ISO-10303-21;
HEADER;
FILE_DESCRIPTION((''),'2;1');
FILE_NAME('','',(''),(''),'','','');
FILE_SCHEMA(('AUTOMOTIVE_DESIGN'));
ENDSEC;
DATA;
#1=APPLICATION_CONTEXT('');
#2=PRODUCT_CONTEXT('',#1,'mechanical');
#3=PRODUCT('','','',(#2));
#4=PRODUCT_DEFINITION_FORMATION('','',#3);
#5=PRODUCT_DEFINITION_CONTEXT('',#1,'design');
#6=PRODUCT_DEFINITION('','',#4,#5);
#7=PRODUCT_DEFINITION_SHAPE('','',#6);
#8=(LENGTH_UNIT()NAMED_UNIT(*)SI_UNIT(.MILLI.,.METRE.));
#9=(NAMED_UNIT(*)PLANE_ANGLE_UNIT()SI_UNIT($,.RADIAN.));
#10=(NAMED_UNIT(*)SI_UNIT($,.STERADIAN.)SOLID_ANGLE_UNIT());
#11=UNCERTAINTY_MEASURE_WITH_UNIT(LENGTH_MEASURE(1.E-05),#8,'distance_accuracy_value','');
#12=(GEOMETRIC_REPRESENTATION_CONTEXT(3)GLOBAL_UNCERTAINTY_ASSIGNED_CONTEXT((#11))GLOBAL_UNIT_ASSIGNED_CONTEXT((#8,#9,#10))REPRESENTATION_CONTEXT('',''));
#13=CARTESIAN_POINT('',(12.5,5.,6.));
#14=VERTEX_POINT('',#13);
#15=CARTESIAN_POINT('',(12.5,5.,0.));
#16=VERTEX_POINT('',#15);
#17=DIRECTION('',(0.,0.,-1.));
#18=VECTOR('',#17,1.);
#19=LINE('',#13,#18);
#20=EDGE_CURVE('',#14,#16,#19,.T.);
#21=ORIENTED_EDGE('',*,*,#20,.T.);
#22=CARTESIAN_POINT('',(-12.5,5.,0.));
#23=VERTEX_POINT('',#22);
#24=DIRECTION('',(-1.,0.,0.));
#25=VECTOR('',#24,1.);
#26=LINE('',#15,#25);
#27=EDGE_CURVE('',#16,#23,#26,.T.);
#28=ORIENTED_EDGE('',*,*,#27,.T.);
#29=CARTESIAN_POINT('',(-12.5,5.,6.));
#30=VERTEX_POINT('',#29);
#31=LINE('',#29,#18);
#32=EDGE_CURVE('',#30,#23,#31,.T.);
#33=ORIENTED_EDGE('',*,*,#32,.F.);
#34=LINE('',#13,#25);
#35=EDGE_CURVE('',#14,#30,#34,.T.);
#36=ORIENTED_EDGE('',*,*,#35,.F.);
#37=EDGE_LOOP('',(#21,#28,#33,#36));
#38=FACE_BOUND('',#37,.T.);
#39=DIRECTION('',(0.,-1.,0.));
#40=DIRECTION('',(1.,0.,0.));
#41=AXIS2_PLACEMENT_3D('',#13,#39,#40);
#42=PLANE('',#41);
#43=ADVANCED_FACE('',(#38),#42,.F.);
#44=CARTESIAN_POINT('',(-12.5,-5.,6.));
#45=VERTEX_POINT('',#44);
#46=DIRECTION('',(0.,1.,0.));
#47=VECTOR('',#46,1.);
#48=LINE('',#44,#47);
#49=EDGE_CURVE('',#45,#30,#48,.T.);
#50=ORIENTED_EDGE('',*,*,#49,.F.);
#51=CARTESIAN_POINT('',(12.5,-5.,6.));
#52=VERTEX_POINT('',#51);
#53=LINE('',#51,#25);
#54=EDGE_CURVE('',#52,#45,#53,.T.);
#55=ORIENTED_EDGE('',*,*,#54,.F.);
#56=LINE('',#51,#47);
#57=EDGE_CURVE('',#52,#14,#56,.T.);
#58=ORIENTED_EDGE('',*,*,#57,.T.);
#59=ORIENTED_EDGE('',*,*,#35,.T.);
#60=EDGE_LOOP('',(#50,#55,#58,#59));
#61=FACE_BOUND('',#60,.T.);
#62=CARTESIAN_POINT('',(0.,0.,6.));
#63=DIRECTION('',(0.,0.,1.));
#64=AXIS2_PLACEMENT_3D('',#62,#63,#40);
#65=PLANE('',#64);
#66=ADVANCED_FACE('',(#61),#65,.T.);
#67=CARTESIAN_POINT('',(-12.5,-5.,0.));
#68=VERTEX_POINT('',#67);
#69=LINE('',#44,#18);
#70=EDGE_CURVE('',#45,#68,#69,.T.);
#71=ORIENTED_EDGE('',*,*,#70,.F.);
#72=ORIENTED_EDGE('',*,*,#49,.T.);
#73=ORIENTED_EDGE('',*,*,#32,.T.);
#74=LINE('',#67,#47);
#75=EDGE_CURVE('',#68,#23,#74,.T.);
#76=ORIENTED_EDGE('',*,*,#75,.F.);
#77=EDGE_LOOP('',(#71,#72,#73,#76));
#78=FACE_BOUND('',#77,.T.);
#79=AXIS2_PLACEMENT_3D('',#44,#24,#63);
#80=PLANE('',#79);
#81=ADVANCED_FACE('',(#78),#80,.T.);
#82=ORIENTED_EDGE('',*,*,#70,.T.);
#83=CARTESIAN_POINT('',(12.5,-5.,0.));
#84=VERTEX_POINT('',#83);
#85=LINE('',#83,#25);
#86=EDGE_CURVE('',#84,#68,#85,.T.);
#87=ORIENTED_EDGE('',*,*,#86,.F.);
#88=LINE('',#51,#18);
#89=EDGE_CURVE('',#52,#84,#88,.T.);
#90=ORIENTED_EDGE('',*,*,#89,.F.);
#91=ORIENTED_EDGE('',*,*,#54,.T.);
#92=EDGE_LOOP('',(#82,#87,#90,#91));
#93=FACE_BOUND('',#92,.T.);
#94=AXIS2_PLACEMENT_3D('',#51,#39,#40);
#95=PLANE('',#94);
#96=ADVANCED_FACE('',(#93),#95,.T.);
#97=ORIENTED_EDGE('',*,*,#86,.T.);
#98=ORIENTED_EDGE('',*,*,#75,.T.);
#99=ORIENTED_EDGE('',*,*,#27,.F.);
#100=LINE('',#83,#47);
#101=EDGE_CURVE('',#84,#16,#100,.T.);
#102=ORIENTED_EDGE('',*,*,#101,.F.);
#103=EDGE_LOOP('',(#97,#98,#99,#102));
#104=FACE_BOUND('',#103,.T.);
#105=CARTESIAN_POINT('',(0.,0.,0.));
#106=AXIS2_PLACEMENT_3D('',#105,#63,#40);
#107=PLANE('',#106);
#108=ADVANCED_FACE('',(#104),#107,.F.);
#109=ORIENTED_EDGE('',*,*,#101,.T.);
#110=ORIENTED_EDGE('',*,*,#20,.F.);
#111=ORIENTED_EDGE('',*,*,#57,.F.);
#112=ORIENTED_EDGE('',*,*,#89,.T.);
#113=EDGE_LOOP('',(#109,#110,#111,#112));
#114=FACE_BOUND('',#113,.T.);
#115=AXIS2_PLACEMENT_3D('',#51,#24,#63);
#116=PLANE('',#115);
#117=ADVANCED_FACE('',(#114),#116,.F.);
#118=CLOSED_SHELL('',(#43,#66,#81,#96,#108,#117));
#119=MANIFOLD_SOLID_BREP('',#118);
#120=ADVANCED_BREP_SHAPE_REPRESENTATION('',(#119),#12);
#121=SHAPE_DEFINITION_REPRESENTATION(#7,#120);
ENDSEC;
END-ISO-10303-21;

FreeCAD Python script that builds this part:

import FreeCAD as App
import Part
import Sketcher
Q = App.Units.Quantity


def add_polygon(sketch, points):
    """Adds a closed chain of lines whose ends are joined by coincident constraints."""
    first, n = sketch.GeometryCount, len(points)
    for a, b in zip(points, points[1:] + points[:1]):
        sketch.addGeometry(Part.LineSegment(App.Vector(*a, 0), App.Vector(*b, 0)), False)
    for i in range(n):
        sketch.addConstraint(Sketcher.Constraint("Coincident", first + i, 2, first + (i + 1) % n, 1))

doc = App.newDocument("Part")
body = doc.addObject("PartDesign::Body", "Body")

sketch1 = body.newObject("Sketcher::SketchObject", "Sketch")
sketch1.AttachmentSupport = (doc.getObject("XY_Plane"), [""])
sketch1.MapMode = "FlatFace"
add_polygon(sketch1, [(-12.5, 5), (-12.5, -5), (12.5, -5), (12.5, 5)])
sketch1.addConstraint(Sketcher.Constraint("Vertical", 0))
sketch1.addConstraint(Sketcher.Constraint("Horizontal", 1))
sketch1.addConstraint(Sketcher.Constraint("Vertical", 2))
sketch1.addConstraint(Sketcher.Constraint("Horizontal", 3))
sketch1.addConstraint(Sketcher.Constraint("Symmetric", 0, 2, 2, 2, -1, 1))
sketch1.addConstraint(Sketcher.Constraint("DistanceX", 1, 1, 1, 2, Q("25 mm")))
sketch1.addConstraint(Sketcher.Constraint("DistanceY", 0, 2, 0, 1, Q("10 mm")))
pad1 = body.newObject("PartDesign::Pad", "Pad")
pad1.Profile = sketch1
pad1.Length = 6

doc.recompute()
